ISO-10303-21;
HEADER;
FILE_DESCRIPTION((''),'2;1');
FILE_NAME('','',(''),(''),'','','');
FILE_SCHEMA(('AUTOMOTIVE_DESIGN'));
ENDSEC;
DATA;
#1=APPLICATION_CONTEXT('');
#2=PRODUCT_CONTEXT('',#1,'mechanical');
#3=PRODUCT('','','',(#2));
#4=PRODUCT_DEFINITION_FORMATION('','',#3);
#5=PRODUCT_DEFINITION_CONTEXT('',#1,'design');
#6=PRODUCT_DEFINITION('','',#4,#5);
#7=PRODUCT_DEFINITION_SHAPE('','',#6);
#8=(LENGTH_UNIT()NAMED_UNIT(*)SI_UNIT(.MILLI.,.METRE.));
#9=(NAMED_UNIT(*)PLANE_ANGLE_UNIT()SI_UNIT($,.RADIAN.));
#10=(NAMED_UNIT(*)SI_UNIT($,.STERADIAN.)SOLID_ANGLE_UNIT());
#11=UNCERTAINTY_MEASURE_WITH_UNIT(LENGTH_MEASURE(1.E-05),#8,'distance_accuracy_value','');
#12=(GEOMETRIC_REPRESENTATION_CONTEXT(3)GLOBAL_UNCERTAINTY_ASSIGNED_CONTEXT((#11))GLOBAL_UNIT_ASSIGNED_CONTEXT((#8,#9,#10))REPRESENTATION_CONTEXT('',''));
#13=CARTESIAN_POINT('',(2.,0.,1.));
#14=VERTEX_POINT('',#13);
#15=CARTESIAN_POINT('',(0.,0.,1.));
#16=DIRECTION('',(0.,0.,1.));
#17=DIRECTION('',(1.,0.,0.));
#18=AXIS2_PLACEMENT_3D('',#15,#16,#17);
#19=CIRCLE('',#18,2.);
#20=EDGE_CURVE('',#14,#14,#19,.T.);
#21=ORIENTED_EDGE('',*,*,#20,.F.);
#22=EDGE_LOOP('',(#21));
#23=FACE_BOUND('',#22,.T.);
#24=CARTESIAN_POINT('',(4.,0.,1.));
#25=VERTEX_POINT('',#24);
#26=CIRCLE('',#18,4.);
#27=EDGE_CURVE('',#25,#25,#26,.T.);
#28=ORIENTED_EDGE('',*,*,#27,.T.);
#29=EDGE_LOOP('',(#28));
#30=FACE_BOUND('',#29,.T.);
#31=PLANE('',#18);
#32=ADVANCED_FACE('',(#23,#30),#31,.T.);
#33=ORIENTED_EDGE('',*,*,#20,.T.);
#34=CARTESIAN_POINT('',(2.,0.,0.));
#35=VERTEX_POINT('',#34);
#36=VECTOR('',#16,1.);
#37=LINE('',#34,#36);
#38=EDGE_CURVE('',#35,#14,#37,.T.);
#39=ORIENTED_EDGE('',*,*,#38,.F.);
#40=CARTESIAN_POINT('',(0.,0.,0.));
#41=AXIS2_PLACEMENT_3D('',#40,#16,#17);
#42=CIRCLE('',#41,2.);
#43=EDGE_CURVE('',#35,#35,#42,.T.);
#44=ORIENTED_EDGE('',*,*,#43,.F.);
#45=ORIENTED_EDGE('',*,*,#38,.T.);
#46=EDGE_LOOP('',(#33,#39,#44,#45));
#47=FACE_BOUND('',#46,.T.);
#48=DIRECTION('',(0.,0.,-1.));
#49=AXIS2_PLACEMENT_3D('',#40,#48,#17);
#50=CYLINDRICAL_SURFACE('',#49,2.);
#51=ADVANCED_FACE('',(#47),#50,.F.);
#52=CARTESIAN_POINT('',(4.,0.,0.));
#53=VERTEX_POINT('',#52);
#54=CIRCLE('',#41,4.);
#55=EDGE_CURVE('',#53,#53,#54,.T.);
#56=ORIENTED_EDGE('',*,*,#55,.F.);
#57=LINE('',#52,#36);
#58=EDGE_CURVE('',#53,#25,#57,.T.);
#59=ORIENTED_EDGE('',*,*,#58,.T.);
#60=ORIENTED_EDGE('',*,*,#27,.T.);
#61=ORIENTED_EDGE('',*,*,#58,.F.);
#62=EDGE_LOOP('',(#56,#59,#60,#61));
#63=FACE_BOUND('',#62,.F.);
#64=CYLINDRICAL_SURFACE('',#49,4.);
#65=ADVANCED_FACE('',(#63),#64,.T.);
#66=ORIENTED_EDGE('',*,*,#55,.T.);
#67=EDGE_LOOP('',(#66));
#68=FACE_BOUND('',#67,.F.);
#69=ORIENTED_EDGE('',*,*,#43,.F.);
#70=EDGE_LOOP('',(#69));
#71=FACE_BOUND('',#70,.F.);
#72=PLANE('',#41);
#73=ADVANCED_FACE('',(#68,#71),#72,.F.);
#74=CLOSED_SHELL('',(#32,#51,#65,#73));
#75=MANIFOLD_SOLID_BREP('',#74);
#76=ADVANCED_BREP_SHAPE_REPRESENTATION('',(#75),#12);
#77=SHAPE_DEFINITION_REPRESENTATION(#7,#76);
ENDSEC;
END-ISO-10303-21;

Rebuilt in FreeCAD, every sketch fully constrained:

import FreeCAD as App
import Part
import Sketcher
Q = App.Units.Quantity

doc = App.newDocument("Part")
body = doc.addObject("PartDesign::Body", "Body")

# Sketch on XY plane
sketch1 = body.newObject("Sketcher::SketchObject", "Sketch")
sketch1.AttachmentSupport = (doc.getObject("XY_Plane"), [""])
sketch1.MapMode = "FlatFace"
sketch1.addGeometry(Part.Circle(App.Vector(0, 0, 0), App.Vector(0, 0, 1), 4), False)
sketch1.addGeometry(Part.Circle(App.Vector(0, 0, 0), App.Vector(0, 0, 1), 2), False)
sketch1.addConstraint(Sketcher.Constraint("Coincident", 0, 3, -1, 1))
sketch1.addConstraint(Sketcher.Constraint("Coincident", 1, 3, -1, 1))
sketch1.addConstraint(Sketcher.Constraint("Diameter", 0, Q("8 mm")))
sketch1.addConstraint(Sketcher.Constraint("Diameter", 1, Q("4 mm")))
pad1 = body.newObject("PartDesign::Pad", "Pad")
pad1.Profile = sketch1
pad1.Length = 1

doc.recompute()
